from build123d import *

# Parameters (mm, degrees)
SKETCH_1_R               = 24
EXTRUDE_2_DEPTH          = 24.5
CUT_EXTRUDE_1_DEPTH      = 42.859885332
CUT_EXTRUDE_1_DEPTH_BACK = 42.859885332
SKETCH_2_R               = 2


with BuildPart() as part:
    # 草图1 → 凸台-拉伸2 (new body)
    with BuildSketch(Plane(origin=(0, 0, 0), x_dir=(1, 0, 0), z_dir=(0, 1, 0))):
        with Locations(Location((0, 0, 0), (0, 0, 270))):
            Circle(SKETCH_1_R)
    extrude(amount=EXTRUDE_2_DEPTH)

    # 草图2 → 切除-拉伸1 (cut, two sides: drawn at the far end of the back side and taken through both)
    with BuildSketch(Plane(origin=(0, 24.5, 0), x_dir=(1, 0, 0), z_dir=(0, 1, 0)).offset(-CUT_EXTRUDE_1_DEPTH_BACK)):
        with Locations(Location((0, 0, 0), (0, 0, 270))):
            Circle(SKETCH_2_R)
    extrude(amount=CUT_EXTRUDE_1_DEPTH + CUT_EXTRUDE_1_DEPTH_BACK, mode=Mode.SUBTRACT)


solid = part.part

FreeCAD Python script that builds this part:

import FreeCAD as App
import Part
import Sketcher

V = App.Vector

doc = App.newDocument("Part")
body = doc.addObject("PartDesign::Body", "Body")

sketch1 = body.newObject("Sketcher::SketchObject", "Sketch")
sketch1.AttachmentSupport = (doc.getObject("XZ_Plane"), [""])
sketch1.MapMode = "FlatFace"
sketch1.addGeometry(Part.Circle(V(0, 0, 0), V(0, 0, 1), 24), False)
sketch1.addConstraint([
    Sketcher.Constraint("Coincident", 0, 3, -1, 1),
    Sketcher.Constraint("Diameter", 0, 48.0),
])
pad1 = body.newObject("PartDesign::Pad", "Pad")
pad1.Profile = sketch1
pad1.Length = 24.5
pad1.Reversed = True

sketch2 = body.newObject("Sketcher::SketchObject", "Sketch001")
sketch2.AttachmentSupport = (doc.getObject("XZ_Plane"), [""])
sketch2.MapMode = "FlatFace"
sketch2.AttachmentOffset = App.Placement(V(0, 0, -24.5), App.Rotation())
sketch2.addGeometry(Part.Circle(V(0, 0, 0), V(0, 0, 1), 2), False)
sketch2.addConstraint([
    Sketcher.Constraint("Coincident", 0, 3, -1, 1),
    Sketcher.Constraint("Diameter", 0, 4.0),
])
pocket1 = body.newObject("PartDesign::Pocket", "Pocket")
pocket1.Profile = sketch2
pocket1.Type = "ThroughAll"
pocket1.Midplane = True

doc.recompute()
